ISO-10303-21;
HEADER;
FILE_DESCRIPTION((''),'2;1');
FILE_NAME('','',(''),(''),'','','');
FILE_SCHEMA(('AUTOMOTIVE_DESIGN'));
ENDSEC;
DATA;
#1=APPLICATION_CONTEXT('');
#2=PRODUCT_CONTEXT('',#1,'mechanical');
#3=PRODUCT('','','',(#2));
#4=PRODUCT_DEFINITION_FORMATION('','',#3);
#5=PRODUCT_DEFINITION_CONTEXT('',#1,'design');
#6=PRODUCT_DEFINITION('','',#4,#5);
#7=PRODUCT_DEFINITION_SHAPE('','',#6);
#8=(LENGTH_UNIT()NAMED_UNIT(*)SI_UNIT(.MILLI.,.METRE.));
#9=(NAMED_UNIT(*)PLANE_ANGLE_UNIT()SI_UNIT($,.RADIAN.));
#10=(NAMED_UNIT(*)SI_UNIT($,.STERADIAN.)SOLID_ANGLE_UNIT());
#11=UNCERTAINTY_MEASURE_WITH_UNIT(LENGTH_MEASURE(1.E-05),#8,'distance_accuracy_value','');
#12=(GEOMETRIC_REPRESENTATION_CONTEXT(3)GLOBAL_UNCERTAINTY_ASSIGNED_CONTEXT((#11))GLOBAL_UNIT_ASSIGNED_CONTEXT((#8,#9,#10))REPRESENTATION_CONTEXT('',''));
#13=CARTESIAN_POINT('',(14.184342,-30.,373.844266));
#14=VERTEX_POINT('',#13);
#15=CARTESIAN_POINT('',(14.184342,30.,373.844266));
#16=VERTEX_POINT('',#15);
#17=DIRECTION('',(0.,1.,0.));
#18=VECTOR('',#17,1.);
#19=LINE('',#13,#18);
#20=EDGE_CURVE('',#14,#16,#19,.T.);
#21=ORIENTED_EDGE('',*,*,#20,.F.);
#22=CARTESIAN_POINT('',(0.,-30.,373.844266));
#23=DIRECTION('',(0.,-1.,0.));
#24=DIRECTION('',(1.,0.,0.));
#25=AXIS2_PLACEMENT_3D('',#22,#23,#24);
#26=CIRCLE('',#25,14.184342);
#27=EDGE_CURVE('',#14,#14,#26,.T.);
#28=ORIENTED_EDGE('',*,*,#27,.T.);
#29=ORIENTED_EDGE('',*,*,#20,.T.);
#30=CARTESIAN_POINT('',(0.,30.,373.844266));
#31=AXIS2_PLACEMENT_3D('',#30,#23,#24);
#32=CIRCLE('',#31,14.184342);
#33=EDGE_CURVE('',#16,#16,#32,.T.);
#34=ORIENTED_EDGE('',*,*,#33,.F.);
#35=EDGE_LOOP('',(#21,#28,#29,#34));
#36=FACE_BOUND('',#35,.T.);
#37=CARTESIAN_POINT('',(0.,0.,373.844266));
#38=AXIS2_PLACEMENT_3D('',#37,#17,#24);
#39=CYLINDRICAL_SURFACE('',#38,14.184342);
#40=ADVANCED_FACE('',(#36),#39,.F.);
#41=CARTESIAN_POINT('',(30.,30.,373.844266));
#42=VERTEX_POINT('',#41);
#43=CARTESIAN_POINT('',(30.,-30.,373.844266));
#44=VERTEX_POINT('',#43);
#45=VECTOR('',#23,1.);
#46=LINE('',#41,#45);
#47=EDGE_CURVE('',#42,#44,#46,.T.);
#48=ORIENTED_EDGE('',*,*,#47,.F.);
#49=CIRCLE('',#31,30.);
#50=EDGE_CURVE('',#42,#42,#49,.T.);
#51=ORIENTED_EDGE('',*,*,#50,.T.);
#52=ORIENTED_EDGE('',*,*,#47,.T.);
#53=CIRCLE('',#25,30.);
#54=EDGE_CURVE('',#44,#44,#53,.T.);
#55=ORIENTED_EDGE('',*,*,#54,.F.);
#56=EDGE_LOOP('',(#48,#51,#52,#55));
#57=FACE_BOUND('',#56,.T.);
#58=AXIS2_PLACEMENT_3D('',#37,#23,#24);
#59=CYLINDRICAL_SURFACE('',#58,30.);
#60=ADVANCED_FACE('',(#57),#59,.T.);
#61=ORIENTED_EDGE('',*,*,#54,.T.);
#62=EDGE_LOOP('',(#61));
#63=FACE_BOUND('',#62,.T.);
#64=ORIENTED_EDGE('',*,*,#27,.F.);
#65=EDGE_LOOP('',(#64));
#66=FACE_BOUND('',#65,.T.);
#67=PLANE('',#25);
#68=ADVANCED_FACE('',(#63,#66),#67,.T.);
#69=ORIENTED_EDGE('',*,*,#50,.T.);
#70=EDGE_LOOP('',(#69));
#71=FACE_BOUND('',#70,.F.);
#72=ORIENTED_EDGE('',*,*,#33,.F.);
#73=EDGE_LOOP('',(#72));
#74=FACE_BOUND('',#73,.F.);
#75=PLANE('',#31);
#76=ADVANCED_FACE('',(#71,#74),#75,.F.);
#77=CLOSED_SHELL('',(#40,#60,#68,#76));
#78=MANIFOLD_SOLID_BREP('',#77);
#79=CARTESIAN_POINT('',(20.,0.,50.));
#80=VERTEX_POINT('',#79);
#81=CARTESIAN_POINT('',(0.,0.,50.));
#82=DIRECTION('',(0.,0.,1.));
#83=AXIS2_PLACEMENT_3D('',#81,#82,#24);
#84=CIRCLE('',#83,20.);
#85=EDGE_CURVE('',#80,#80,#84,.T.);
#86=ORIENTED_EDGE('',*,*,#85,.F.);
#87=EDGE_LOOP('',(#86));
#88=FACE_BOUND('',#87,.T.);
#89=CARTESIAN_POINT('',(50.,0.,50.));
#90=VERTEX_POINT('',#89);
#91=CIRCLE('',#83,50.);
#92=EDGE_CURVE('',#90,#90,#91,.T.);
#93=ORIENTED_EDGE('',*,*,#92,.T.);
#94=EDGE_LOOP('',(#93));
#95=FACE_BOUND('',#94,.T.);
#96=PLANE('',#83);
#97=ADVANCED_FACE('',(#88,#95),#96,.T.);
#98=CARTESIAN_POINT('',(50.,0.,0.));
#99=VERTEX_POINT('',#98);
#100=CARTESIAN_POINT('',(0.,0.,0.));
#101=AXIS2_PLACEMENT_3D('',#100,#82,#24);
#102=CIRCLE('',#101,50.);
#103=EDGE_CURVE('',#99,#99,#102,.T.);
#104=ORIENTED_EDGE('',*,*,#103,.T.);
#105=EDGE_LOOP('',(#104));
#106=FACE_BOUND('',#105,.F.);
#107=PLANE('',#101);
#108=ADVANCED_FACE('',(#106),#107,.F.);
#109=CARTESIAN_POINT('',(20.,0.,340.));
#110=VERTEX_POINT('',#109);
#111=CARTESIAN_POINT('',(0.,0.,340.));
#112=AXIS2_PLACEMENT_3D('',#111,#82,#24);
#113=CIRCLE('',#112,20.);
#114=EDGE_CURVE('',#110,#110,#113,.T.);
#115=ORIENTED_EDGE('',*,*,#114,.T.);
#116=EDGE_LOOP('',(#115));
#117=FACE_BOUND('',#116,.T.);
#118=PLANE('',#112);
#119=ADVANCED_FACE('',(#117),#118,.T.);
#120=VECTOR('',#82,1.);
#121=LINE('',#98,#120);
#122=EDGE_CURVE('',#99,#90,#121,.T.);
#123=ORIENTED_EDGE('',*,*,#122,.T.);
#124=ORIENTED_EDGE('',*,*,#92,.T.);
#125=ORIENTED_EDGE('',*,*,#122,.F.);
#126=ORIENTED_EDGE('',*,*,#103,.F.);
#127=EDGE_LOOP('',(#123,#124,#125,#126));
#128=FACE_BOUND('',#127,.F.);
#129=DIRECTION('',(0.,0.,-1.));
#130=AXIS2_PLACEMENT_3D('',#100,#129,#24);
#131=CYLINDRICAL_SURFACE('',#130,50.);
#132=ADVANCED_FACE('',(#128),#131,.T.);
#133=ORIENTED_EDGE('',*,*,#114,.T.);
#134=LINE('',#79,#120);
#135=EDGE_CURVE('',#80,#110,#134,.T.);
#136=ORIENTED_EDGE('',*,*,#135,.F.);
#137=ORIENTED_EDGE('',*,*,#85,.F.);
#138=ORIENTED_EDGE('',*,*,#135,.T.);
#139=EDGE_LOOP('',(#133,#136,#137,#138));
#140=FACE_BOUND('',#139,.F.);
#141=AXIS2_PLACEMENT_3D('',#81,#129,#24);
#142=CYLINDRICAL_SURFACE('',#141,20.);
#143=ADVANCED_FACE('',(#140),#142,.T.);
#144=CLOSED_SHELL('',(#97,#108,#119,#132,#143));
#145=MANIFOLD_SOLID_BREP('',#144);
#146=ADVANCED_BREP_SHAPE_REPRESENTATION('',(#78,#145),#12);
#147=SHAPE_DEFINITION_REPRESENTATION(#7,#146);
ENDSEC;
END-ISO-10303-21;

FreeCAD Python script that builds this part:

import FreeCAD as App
import Part
import Sketcher
from FreeCAD import Vector
Q = App.Units.Quantity

doc = App.newDocument("Part")
body = doc.addObject("PartDesign::Body", "Body")

sketch1 = doc.addObject("Sketcher::SketchObject", "Sketch")
body.addObject(sketch1)
sketch1.AttachmentSupport = (doc.XY_Plane, [""])
sketch1.MapMode = "FlatFace"
sketch1.addGeometry(Part.Circle(Vector(0, 0, 0), Vector(0, 0, 1), 50), False)
sketch1.addConstraint(Sketcher.Constraint("Coincident", 0, 3, -1, 1))
sketch1.addConstraint(Sketcher.Constraint("Diameter", 0, Q("100 mm")))
pad1 = doc.addObject("PartDesign::Pad", "Pad")
body.addObject(pad1)
pad1.Profile = sketch1
pad1.Length = 50

sketch2 = doc.addObject("Sketcher::SketchObject", "Sketch001")
body.addObject(sketch2)
sketch2.AttachmentSupport = (doc.XY_Plane, [""])
sketch2.MapMode = "FlatFace"
sketch2.AttachmentOffset = App.Placement(Vector(0, 0, 50), App.Rotation())
sketch2.addGeometry(Part.Circle(Vector(0, 0, 0), Vector(0, 0, 1), 20), False)
sketch2.addConstraint(Sketcher.Constraint("Coincident", 0, 3, -1, 1))
sketch2.addConstraint(Sketcher.Constraint("Diameter", 0, Q("40 mm")))
pad2 = doc.addObject("PartDesign::Pad", "Pad001")
body.addObject(pad2)
pad2.Profile = sketch2
pad2.Length = 290
body2 = doc.addObject("PartDesign::Body", "Body001")

sketch3 = doc.addObject("Sketcher::SketchObject", "Sketch002")
body2.addObject(sketch3)
sketch3.AttachmentSupport = (doc.getObject("XZ_Plane001"), [""])
sketch3.MapMode = "FlatFace"
sketch3.addGeometry(Part.Circle(Vector(0, 374, 0), Vector(0, 0, 1), 30), False)
sketch3.addGeometry(Part.Circle(Vector(0, 374, 0), Vector(0, 0, 1), 14), False)
sketch3.addConstraint(Sketcher.Constraint("Coincident", 1, 3, 0, 3))
sketch3.addConstraint(Sketcher.Constraint("PointOnObject", 0, 3, -2))
sketch3.addConstraint(Sketcher.Constraint("Diameter", 0, Q("60 mm")))
sketch3.addConstraint(Sketcher.Constraint("Diameter", 1, Q("28.368684 mm")))
sketch3.addConstraint(Sketcher.Constraint("DistanceY", -1, 1, 0, 3, Q("373.844266 mm")))
pad3 = doc.addObject("PartDesign::Pad", "Pad002")
body2.addObject(pad3)
pad3.Profile = sketch3
pad3.Length = 60
pad3.Midplane = True

doc.recompute()
